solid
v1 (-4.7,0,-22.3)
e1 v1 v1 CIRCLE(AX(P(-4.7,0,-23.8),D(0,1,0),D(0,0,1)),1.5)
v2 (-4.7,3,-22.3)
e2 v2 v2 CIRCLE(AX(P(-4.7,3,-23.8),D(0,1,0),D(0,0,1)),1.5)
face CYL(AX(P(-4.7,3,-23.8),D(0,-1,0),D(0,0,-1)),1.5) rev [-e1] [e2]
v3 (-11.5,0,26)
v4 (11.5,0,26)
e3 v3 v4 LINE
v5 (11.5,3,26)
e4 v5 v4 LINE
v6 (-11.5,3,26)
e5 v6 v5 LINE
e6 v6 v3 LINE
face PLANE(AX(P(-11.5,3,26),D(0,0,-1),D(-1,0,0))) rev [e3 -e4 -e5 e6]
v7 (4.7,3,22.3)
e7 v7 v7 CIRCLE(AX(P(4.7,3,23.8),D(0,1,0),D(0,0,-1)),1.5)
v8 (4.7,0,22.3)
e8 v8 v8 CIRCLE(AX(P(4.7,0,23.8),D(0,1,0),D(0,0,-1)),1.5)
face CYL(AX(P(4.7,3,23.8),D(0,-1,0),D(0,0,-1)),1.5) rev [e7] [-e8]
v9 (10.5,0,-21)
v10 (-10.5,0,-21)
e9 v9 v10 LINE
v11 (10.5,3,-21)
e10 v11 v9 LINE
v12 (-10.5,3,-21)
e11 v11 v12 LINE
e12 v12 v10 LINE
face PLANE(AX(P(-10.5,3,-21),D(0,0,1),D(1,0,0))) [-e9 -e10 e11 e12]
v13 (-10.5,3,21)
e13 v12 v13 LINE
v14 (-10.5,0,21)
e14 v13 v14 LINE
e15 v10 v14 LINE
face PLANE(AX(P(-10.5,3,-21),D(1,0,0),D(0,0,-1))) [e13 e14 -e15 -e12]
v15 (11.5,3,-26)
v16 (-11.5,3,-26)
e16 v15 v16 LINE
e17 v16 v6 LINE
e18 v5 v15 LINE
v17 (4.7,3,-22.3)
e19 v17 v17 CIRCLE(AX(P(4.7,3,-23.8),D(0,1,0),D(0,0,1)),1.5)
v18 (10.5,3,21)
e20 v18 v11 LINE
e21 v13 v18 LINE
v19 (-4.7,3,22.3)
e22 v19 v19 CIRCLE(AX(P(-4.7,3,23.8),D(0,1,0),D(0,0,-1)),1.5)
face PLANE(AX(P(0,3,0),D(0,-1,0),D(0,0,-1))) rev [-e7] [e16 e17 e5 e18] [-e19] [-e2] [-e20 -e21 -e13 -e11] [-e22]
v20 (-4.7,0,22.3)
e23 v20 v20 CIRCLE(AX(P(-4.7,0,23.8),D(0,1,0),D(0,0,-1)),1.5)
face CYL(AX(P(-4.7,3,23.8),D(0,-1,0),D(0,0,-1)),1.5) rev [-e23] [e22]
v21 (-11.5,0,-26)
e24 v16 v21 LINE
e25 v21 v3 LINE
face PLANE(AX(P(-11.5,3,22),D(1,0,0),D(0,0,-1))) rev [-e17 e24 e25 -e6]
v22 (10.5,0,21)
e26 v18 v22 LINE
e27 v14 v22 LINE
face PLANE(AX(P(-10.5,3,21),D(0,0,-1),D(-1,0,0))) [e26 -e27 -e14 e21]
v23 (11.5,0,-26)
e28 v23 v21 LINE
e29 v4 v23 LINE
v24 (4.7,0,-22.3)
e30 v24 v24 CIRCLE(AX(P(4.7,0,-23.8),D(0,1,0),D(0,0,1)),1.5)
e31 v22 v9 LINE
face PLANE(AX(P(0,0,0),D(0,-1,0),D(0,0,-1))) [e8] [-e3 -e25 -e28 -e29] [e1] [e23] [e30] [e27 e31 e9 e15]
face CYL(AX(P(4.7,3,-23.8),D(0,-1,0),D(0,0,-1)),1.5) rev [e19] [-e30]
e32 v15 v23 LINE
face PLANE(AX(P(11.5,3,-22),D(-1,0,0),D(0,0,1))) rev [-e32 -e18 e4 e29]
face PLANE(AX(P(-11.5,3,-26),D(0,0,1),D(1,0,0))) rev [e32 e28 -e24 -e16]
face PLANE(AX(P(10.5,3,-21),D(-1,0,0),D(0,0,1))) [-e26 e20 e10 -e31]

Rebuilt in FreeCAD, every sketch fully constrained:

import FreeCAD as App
import Part
import Sketcher
Q = App.Units.Quantity

doc = App.newDocument("Part")
body = doc.addObject("PartDesign::Body", "Body")

# Sketch on XZ plane
sketch1 = body.newObject("Sketcher::SketchObject", "Sketch")
sketch1.AttachmentSupport = (doc.getObject("XZ_Plane"), [""])
sketch1.MapMode = "FlatFace"
sketch1.addGeometry(Part.LineSegment(App.Vector(11.5, 26, 0), App.Vector(11.5, -26, 0)), False)
sketch1.addGeometry(Part.LineSegment(App.Vector(11.5, -26, 0), App.Vector(-11.5, -26, 0)), False)
sketch1.addGeometry(Part.LineSegment(App.Vector(-11.5, -26, 0), App.Vector(-11.5, 26, 0)), False)
sketch1.addGeometry(Part.LineSegment(App.Vector(-11.5, 26, 0), App.Vector(11.5, 26, 0)), False)
sketch1.addGeometry(Part.Circle(App.Vector(4.7, 23.8, 0), App.Vector(0, 0, 1), 1.5), False)
sketch1.addGeometry(Part.Circle(App.Vector(-4.7, 23.8, 0), App.Vector(0, 0, 1), 1.5), False)
sketch1.addGeometry(Part.Circle(App.Vector(4.7, -23.8, 0), App.Vector(0, 0, 1), 1.5), False)
sketch1.addGeometry(Part.LineSegment(App.Vector(-10.5, 21, 0), App.Vector(-10.5, -21, 0)), False)
sketch1.addGeometry(Part.LineSegment(App.Vector(-10.5, -21, 0), App.Vector(10.5, -21, 0)), False)
sketch1.addGeometry(Part.LineSegment(App.Vector(10.5, -21, 0), App.Vector(10.5, 21, 0)), False)
sketch1.addGeometry(Part.LineSegment(App.Vector(10.5, 21, 0), App.Vector(-10.5, 21, 0)), False)
sketch1.addGeometry(Part.Circle(App.Vector(-4.7, -23.8, 0), App.Vector(0, 0, 1), 1.5), False)
sketch1.addConstraint(Sketcher.Constraint("Coincident", 0, 2, 1, 1))
sketch1.addConstraint(Sketcher.Constraint("Coincident", 1, 2, 2, 1))
sketch1.addConstraint(Sketcher.Constraint("Coincident", 2, 2, 3, 1))
sketch1.addConstraint(Sketcher.Constraint("Coincident", 3, 2, 0, 1))
sketch1.addConstraint(Sketcher.Constraint("Coincident", 7, 2, 8, 1))
sketch1.addConstraint(Sketcher.Constraint("Coincident", 8, 2, 9, 1))
sketch1.addConstraint(Sketcher.Constraint("Coincident", 9, 2, 10, 1))
sketch1.addConstraint(Sketcher.Constraint("Coincident", 10, 2, 7, 1))
sketch1.addConstraint(Sketcher.Constraint("Vertical", 0))
sketch1.addConstraint(Sketcher.Constraint("Horizontal", 1))
sketch1.addConstraint(Sketcher.Constraint("Vertical", 2))
sketch1.addConstraint(Sketcher.Constraint("Horizontal", 3))
sketch1.addConstraint(Sketcher.Constraint("Vertical", 7))
sketch1.addConstraint(Sketcher.Constraint("Horizontal", 8))
sketch1.addConstraint(Sketcher.Constraint("Vertical", 9))
sketch1.addConstraint(Sketcher.Constraint("Horizontal", 10))
sketch1.addConstraint(Sketcher.Constraint("Equal", 4, 5))
sketch1.addConstraint(Sketcher.Constraint("Equal", 5, 6))
sketch1.addConstraint(Sketcher.Constraint("Equal", 6, 11))
sketch1.addConstraint(Sketcher.Constraint("Symmetric", 5, 3, 6, 3, -1, 1))
sketch1.addConstraint(Sketcher.Constraint("Symmetric", 4, 3, 11, 3, -1, 1))
sketch1.addConstraint(Sketcher.Constraint("Symmetric", 0, 2, 2, 2, -1, 1))
sketch1.addConstraint(Sketcher.Constraint("Symmetric", 7, 2, 9, 2, -1, 1))
sketch1.addConstraint(Sketcher.Constraint("Symmetric", 4, 3, 5, 3, -2))
sketch1.addConstraint(Sketcher.Constraint("Diameter", 4, Q("3 mm")))
sketch1.addConstraint(Sketcher.Constraint("DistanceX", 1, 2, 1, 1, Q("23 mm")))
sketch1.addConstraint(Sketcher.Constraint("DistanceX", 8, 1, 8, 2, Q("21 mm")))
sketch1.addConstraint(Sketcher.Constraint("DistanceY", 0, 2, 0, 1, Q("52 mm")))
sketch1.addConstraint(Sketcher.Constraint("DistanceY", 7, 2, 7, 1, Q("42 mm")))
sketch1.addConstraint(Sketcher.Constraint("DistanceX", -1, 1, 4, 3, Q("4.7 mm")))
sketch1.addConstraint(Sketcher.Constraint("DistanceY", -1, 1, 4, 3, Q("23.8 mm")))
pad1 = body.newObject("PartDesign::Pad", "Pad")
pad1.Profile = sketch1
pad1.Length = 3
pad1.Reversed = True

doc.recompute()
